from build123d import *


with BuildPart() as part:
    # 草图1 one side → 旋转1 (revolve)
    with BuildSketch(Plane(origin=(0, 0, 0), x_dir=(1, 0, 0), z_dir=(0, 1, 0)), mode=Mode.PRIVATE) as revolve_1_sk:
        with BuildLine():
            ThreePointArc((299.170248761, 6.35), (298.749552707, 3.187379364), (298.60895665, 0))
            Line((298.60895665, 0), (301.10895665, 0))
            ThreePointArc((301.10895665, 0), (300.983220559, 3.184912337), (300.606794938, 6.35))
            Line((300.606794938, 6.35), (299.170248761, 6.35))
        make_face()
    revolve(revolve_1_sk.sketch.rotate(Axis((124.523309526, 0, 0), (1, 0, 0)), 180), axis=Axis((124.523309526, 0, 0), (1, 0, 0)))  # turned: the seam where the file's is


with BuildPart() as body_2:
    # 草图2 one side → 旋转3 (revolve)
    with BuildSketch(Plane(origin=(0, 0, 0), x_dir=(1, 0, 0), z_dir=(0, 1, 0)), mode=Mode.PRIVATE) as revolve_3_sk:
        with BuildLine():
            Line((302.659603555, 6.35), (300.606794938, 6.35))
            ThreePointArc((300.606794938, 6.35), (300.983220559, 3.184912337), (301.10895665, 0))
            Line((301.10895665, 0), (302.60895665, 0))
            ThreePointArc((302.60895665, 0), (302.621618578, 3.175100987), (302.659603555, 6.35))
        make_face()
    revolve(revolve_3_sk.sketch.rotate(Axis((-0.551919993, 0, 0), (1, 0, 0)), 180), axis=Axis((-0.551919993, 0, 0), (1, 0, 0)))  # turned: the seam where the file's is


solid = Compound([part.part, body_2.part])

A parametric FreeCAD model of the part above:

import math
import FreeCAD as App
import Part
import Sketcher
Q = App.Units.Quantity

doc = App.newDocument("Part")
body = doc.addObject("PartDesign::Body", "Body")

# Sketch on XZ plane
sketch1 = body.newObject("Sketcher::SketchObject", "Sketch")
sketch1.AttachmentSupport = (doc.getObject("XZ_Plane"), [""])
sketch1.MapMode = "FlatFace"
sketch1.addGeometry([
    Part.ArcOfCircle(Part.Circle(App.Vector(334.808957, 0, 0), App.Vector(0, 0, 1), 36.2), math.radians(-180), math.radians(-169.897228)),
    Part.LineSegment(App.Vector(298.608957, 0, 0), App.Vector(301.108957, 0, 0)),
    Part.ArcOfCircle(Part.Circle(App.Vector(260.708957, 0, 0), App.Vector(0, 0, 1), 40.4), math.radians(-9.043148), math.radians(0)),
    Part.LineSegment(App.Vector(300.606795, -6.35, 0), App.Vector(299.170249, -6.35, 0)),
], False)
sketch1.addConstraint([
    Sketcher.Constraint("Coincident", 0, 1, 1, 1),
    Sketcher.Constraint("Coincident", 1, 2, 2, 2),
    Sketcher.Constraint("Coincident", 2, 1, 3, 1),
    Sketcher.Constraint("Coincident", 3, 2, 0, 2),
    Sketcher.Constraint("Horizontal", 1),
    Sketcher.Constraint("Horizontal", 3),
    Sketcher.Constraint("PointOnObject", 0, 3, -1),
    Sketcher.Constraint("PointOnObject", 2, 3, -1),
    Sketcher.Constraint("PointOnObject", 0, 1, -1),
    Sketcher.Constraint("Radius", 0, Q("36.2 mm")),
    Sketcher.Constraint("Radius", 2, Q("40.4 mm")),
    Sketcher.Constraint("DistanceX", 1, 1, 1, 2, Q("2.5 mm")),
    Sketcher.Constraint("DistanceY", 2, 1, -1, 1, Q("6.35 mm")),
    Sketcher.Constraint("DistanceX", -1, 1, 3, 2, Q("299.170249 mm")),
])
revolution = body.newObject("PartDesign::Revolution", "Revolution")
revolution.Profile = sketch1
revolution.ReferenceAxis = (sketch1, ["H_Axis"])
revolution.Angle = 360
body2 = doc.addObject("PartDesign::Body", "Body001")

# Sketch on XZ plane
sketch2 = body2.newObject("Sketcher::SketchObject", "Sketch001")
sketch2.AttachmentSupport = (doc.getObject("XZ_Plane001"), [""])
sketch2.MapMode = "FlatFace"
sketch2.addGeometry([
    Part.LineSegment(App.Vector(302.659604, -6.35, 0), App.Vector(300.606795, -6.35, 0)),
    Part.ArcOfCircle(Part.Circle(App.Vector(260.708957, 0, 0), App.Vector(0, 0, 1), 40.4), math.radians(-9.043148), math.radians(0)),
    Part.LineSegment(App.Vector(301.108957, 0, 0), App.Vector(302.608957, 0, 0)),
    Part.ArcOfCircle(Part.Circle(App.Vector(700.708962, 0, 0), App.Vector(0, 0, 1), 398.100006), math.radians(-180), math.radians(-179.08605)),
], False)
sketch2.addConstraint([
    Sketcher.Constraint("Coincident", 0, 2, 1, 1),
    Sketcher.Constraint("Coincident", 1, 2, 2, 1),
    Sketcher.Constraint("Coincident", 2, 2, 3, 1),
    Sketcher.Constraint("Coincident", 3, 2, 0, 1),
    Sketcher.Constraint("Horizontal", 0),
    Sketcher.Constraint("Horizontal", 2),
    Sketcher.Constraint("PointOnObject", 1, 3, -1),
    Sketcher.Constraint("PointOnObject", 3, 3, -1),
    Sketcher.Constraint("PointOnObject", 1, 2, -1),
    Sketcher.Constraint("Radius", 1, Q("40.4 mm")),
    Sketcher.Constraint("DistanceX", 2, 1, 2, 2, Q("1.5 mm")),
    Sketcher.Constraint("DistanceY", 0, 2, -1, 1, Q("6.35 mm")),
    Sketcher.Constraint("Radius", 3, Q("398.100006 mm")),
    Sketcher.Constraint("DistanceX", -1, 1, 1, 3, Q("260.708957 mm")),
])
revolution2 = body2.newObject("PartDesign::Revolution", "Revolution001")
revolution2.Profile = sketch2
revolution2.ReferenceAxis = (sketch2, ["H_Axis"])
revolution2.Angle = 360

doc.recompute()
